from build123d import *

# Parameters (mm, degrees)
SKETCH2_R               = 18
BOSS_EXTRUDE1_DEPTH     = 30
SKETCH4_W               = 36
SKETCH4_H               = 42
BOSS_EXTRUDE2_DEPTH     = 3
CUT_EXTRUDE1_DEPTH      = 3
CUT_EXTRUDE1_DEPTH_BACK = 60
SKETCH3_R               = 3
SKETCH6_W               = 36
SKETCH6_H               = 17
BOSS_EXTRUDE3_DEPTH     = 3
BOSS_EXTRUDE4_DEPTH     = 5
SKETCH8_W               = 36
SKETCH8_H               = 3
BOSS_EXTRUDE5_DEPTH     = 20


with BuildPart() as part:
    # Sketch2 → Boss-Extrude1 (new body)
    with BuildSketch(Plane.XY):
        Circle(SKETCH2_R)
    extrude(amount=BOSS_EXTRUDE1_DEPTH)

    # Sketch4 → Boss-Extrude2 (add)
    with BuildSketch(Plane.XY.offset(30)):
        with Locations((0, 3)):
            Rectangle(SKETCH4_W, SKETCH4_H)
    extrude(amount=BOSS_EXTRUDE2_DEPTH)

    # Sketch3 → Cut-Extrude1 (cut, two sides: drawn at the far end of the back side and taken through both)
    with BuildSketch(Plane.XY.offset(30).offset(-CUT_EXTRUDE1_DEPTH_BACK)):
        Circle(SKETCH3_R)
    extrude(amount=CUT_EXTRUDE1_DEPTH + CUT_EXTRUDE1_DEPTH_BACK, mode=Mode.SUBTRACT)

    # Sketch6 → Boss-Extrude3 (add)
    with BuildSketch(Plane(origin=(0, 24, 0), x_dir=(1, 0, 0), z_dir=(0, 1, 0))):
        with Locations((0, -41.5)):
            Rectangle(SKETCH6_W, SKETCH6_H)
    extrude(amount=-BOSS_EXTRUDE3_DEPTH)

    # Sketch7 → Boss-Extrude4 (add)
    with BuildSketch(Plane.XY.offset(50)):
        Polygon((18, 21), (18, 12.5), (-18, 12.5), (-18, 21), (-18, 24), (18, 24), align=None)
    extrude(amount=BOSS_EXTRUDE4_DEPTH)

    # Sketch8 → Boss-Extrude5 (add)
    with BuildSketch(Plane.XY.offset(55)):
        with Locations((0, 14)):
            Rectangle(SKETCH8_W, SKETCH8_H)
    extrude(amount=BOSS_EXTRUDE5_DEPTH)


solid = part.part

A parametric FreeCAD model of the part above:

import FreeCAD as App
import Part
import Sketcher
Q = App.Units.Quantity

doc = App.newDocument("Part")
params = doc.addObject("Spreadsheet::Sheet", "Params")
for row, (alias, value) in enumerate([
    ("sketch1_diameter", "36 mm"),
    ("pad1_length", "30 mm"),
    ("sketch2_width", "36 mm"),
    ("sketch2_height", "42 mm"),
    ("pad2_length", "3 mm"),
    ("sketch3_diameter", "6 mm"),
    ("sketch4_width", "36 mm"),
    ("sketch4_height", "17 mm"),
    ("pad3_length", "3 mm"),
    ("sketch5_width", "36 mm"),
    ("sketch5_height", "11.5 mm"),
    ("pad4_length", "5 mm"),
    ("sketch6_width", "36 mm"),
    ("sketch6_height", "3 mm"),
    ("pad5_length", "20 mm"),
], start=1):
    params.set(f"A{row}", alias)
    params.set(f"B{row}", "=" + value)
    params.setAlias(f"B{row}", alias)

body = doc.addObject("PartDesign::Body", "Body")

# Sketch on XY plane
sketch1 = body.newObject("Sketcher::SketchObject", "Sketch")
sketch1.AttachmentSupport = (doc.getObject("XY_Plane"), [""])
sketch1.MapMode = "FlatFace"
sketch1.addGeometry(Part.Circle(App.Vector(0, 0, 0), App.Vector(0, 0, 1), 18), False)
sketch1.addConstraint([
    Sketcher.Constraint("Coincident", 0, 3, -1, 1),
    Sketcher.Constraint("Diameter", 0, Q("36 mm")),
])
sketch1.setExpression("Constraints[1]", "Params.sketch1_diameter")
pad1 = body.newObject("PartDesign::Pad", "Pad")
pad1.Profile = sketch1
pad1.setExpression("Length", "Params.pad1_length")

# Sketch on XY plane
sketch2 = body.newObject("Sketcher::SketchObject", "Sketch001")
sketch2.AttachmentSupport = (doc.getObject("XY_Plane"), [""])
sketch2.MapMode = "FlatFace"
sketch2.AttachmentOffset = App.Placement(App.Vector(0, 0, 30), App.Rotation())
sketch2.addGeometry([
    Part.LineSegment(App.Vector(-18, 24, 0), App.Vector(-18, -18, 0)),
    Part.LineSegment(App.Vector(-18, -18, 0), App.Vector(18, -18, 0)),
    Part.LineSegment(App.Vector(18, -18, 0), App.Vector(18, 24, 0)),
    Part.LineSegment(App.Vector(18, 24, 0), App.Vector(-18, 24, 0)),
], False)
sketch2.addConstraint([
    Sketcher.Constraint("Coincident", 0, 2, 1, 1),
    Sketcher.Constraint("Coincident", 1, 2, 2, 1),
    Sketcher.Constraint("Coincident", 2, 2, 3, 1),
    Sketcher.Constraint("Coincident", 3, 2, 0, 1),
    Sketcher.Constraint("Vertical", 0),
    Sketcher.Constraint("Horizontal", 1),
    Sketcher.Constraint("Vertical", 2),
    Sketcher.Constraint("Horizontal", 3),
    Sketcher.Constraint("DistanceX", 1, 1, 1, 2, Q("36 mm")),
    Sketcher.Constraint("DistanceY", 0, 2, 0, 1, Q("42 mm")),
    Sketcher.Constraint("DistanceX", 0, 2, -1, 1, Q("18 mm")),
    Sketcher.Constraint("DistanceY", 0, 2, -1, 1, Q("18 mm")),
])
sketch2.setExpression("Constraints[8]", "Params.sketch2_width")
sketch2.setExpression("Constraints[9]", "Params.sketch2_height")
pad2 = body.newObject("PartDesign::Pad", "Pad001")
pad2.Profile = sketch2
pad2.setExpression("Length", "Params.pad2_length")

# Sketch on XY plane
sketch3 = body.newObject("Sketcher::SketchObject", "Sketch002")
sketch3.AttachmentSupport = (doc.getObject("XY_Plane"), [""])
sketch3.MapMode = "FlatFace"
sketch3.AttachmentOffset = App.Placement(App.Vector(0, 0, 30), App.Rotation())
sketch3.addGeometry(Part.Circle(App.Vector(0, 0, 0), App.Vector(0, 0, 1), 3), False)
sketch3.addConstraint([
    Sketcher.Constraint("Coincident", 0, 3, -1, 1),
    Sketcher.Constraint("Diameter", 0, Q("6 mm")),
])
sketch3.setExpression("Constraints[1]", "Params.sketch3_diameter")
pocket1 = body.newObject("PartDesign::Pocket", "Pocket")
pocket1.Profile = sketch3
pocket1.Type = "ThroughAll"
pocket1.Midplane = True

# Sketch on XZ plane
sketch4 = body.newObject("Sketcher::SketchObject", "Sketch003")
sketch4.AttachmentSupport = (doc.getObject("XZ_Plane"), [""])
sketch4.MapMode = "FlatFace"
sketch4.AttachmentOffset = App.Placement(App.Vector(0, 0, -24), App.Rotation())
sketch4.addGeometry([
    Part.LineSegment(App.Vector(-18, 33, 0), App.Vector(-18, 50, 0)),
    Part.LineSegment(App.Vector(-18, 50, 0), App.Vector(18, 50, 0)),
    Part.LineSegment(App.Vector(18, 50, 0), App.Vector(18, 33, 0)),
    Part.LineSegment(App.Vector(18, 33, 0), App.Vector(-18, 33, 0)),
], False)
sketch4.addConstraint([
    Sketcher.Constraint("Coincident", 0, 2, 1, 1),
    Sketcher.Constraint("Coincident", 1, 2, 2, 1),
    Sketcher.Constraint("Coincident", 2, 2, 3, 1),
    Sketcher.Constraint("Coincident", 3, 2, 0, 1),
    Sketcher.Constraint("Vertical", 0),
    Sketcher.Constraint("Horizontal", 1),
    Sketcher.Constraint("Vertical", 2),
    Sketcher.Constraint("Horizontal", 3),
    Sketcher.Constraint("DistanceX", 1, 1, 1, 2, Q("36 mm")),
    Sketcher.Constraint("DistanceY", 0, 1, 0, 2, Q("17 mm")),
    Sketcher.Constraint("DistanceX", 0, 2, -1, 1, Q("18 mm")),
    Sketcher.Constraint("DistanceY", -1, 1, 0, 2, Q("50 mm")),
])
sketch4.setExpression("Constraints[8]", "Params.sketch4_width")
sketch4.setExpression("Constraints[9]", "Params.sketch4_height")
pad3 = body.newObject("PartDesign::Pad", "Pad002")
pad3.Profile = sketch4
pad3.setExpression("Length", "Params.pad3_length")

# Sketch on XY plane
sketch5 = body.newObject("Sketcher::SketchObject", "Sketch004")
sketch5.AttachmentSupport = (doc.getObject("XY_Plane"), [""])
sketch5.MapMode = "FlatFace"
sketch5.AttachmentOffset = App.Placement(App.Vector(0, 0, 50), App.Rotation())
sketch5.addGeometry([
    Part.LineSegment(App.Vector(18, 12, 0), App.Vector(18, 24, 0)),
    Part.LineSegment(App.Vector(18, 24, 0), App.Vector(-18, 24, 0)),
    Part.LineSegment(App.Vector(-18, 24, 0), App.Vector(-18, 12, 0)),
    Part.LineSegment(App.Vector(-18, 12, 0), App.Vector(18, 12, 0)),
], False)
sketch5.addConstraint([
    Sketcher.Constraint("Coincident", 0, 2, 1, 1),
    Sketcher.Constraint("Coincident", 1, 2, 2, 1),
    Sketcher.Constraint("Coincident", 2, 2, 3, 1),
    Sketcher.Constraint("Coincident", 3, 2, 0, 1),
    Sketcher.Constraint("Vertical", 0),
    Sketcher.Constraint("Horizontal", 1),
    Sketcher.Constraint("Vertical", 2),
    Sketcher.Constraint("Horizontal", 3),
    Sketcher.Constraint("DistanceX", 1, 2, 1, 1, Q("36 mm")),
    Sketcher.Constraint("DistanceY", 0, 1, 0, 2, Q("11.5 mm")),
    Sketcher.Constraint("DistanceX", -1, 1, 0, 2, Q("18 mm")),
    Sketcher.Constraint("DistanceY", -1, 1, 0, 2, Q("24 mm")),
])
sketch5.setExpression("Constraints[8]", "Params.sketch5_width")
sketch5.setExpression("Constraints[9]", "Params.sketch5_height")
pad4 = body.newObject("PartDesign::Pad", "Pad003")
pad4.Profile = sketch5
pad4.setExpression("Length", "Params.pad4_length")

# Sketch on XY plane
sketch6 = body.newObject("Sketcher::SketchObject", "Sketch005")
sketch6.AttachmentSupport = (doc.getObject("XY_Plane"), [""])
sketch6.MapMode = "FlatFace"
sketch6.AttachmentOffset = App.Placement(App.Vector(0, 0, 55), App.Rotation())
sketch6.addGeometry([
    Part.LineSegment(App.Vector(-18, 15.5, 0), App.Vector(-18, 12.5, 0)),
    Part.LineSegment(App.Vector(-18, 12.5, 0), App.Vector(18, 12.5, 0)),
    Part.LineSegment(App.Vector(18, 12.5, 0), App.Vector(18, 15.5, 0)),
    Part.LineSegment(App.Vector(18, 15.5, 0), App.Vector(-18, 15.5, 0)),
], False)
sketch6.addConstraint([
    Sketcher.Constraint("Coincident", 0, 2, 1, 1),
    Sketcher.Constraint("Coincident", 1, 2, 2, 1),
    Sketcher.Constraint("Coincident", 2, 2, 3, 1),
    Sketcher.Constraint("Coincident", 3, 2, 0, 1),
    Sketcher.Constraint("Vertical", 0),
    Sketcher.Constraint("Horizontal", 1),
    Sketcher.Constraint("Vertical", 2),
    Sketcher.Constraint("Horizontal", 3),
    Sketcher.Constraint("DistanceX", 1, 1, 1, 2, Q("36 mm")),
    Sketcher.Constraint("DistanceY", 0, 2, 0, 1, Q("3 mm")),
    Sketcher.Constraint("DistanceX", 0, 2, -1, 1, Q("18 mm")),
    Sketcher.Constraint("DistanceY", -1, 1, 0, 2, Q("12.5 mm")),
])
sketch6.setExpression("Constraints[8]", "Params.sketch6_width")
sketch6.setExpression("Constraints[9]", "Params.sketch6_height")
pad5 = body.newObject("PartDesign::Pad", "Pad004")
pad5.Profile = sketch6
pad5.setExpression("Length", "Params.pad5_length")

doc.recompute()
